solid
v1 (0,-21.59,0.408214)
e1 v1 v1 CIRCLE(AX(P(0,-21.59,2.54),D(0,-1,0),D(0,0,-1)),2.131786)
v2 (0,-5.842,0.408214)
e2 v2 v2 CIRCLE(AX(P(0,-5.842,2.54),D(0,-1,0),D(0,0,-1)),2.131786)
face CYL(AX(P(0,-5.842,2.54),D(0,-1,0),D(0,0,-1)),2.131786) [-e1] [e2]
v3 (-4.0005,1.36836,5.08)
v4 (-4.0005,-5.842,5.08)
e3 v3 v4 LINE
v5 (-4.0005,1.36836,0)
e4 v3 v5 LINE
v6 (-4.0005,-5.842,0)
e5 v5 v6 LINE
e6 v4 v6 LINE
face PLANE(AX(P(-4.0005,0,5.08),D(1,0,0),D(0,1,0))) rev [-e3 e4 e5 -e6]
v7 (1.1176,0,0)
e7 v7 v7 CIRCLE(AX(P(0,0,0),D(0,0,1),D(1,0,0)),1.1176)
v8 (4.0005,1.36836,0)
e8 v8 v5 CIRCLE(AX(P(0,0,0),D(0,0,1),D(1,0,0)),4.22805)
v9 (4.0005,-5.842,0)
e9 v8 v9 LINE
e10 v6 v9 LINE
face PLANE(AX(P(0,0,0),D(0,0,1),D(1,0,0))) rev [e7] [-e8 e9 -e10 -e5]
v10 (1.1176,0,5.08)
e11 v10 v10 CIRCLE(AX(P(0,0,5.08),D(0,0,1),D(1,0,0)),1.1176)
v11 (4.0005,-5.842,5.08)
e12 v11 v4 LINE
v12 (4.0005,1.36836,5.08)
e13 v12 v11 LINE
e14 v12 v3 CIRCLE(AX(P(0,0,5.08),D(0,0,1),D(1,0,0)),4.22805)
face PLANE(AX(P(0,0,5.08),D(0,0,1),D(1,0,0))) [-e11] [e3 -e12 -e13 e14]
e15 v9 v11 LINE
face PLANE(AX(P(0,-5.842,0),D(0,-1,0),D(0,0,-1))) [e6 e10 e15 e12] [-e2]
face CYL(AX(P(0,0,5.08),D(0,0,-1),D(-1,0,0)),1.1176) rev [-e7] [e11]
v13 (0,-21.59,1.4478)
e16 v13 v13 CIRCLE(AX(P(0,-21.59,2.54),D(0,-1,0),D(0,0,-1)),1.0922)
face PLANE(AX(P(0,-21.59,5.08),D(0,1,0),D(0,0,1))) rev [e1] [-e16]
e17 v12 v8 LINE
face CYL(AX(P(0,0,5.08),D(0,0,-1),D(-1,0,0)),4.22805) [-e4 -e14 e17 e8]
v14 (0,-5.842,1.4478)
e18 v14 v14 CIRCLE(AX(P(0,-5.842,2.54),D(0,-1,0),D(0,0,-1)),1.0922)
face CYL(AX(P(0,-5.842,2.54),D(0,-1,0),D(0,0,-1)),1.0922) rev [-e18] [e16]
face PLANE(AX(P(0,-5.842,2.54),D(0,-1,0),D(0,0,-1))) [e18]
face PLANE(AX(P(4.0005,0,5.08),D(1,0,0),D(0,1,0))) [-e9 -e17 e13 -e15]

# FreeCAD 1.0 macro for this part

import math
import FreeCAD as App
import Part
import Sketcher
from FreeCAD import Vector
Q = App.Units.Quantity

doc = App.newDocument("Part")
params = doc.addObject("Spreadsheet::Sheet", "Params")
for row, (alias, value) in enumerate([
    ("sketch1_diameter", "0.088 in"),
    ("sketch1_width", "0.315 in"),
    ("pad1_length", "0.2 in"),
    ("sketch2_diameter", "0.086 in"),
    ("pocket1_length", "0.62 in"),
    ("sketch3_height", "0.2 in"),
    ("sketch3_width", "0.315 in"),
    ("pocket2_length", "0.62 in"),
], start=1):
    params.set(f"A{row}", alias)
    params.set(f"B{row}", "=" + value)
    params.setAlias(f"B{row}", alias)

body = doc.addObject("PartDesign::Body", "Body")

sketch1 = body.newObject("Sketcher::SketchObject", "Sketch")
sketch1.AttachmentSupport = (doc.getObject("XY_Plane"), [""])
sketch1.MapMode = "FlatFace"
sketch1.addGeometry(Part.LineSegment(Vector(4, -21.6, 0), Vector(4, 1.4, 0)), False)
sketch1.addGeometry(Part.ArcOfCircle(Part.Circle(Vector(0, 0, 0), Vector(0, 0, 1), 4.2), math.radians(19), math.radians(161)), False)
sketch1.addGeometry(Part.LineSegment(Vector(-4, 1.4, 0), Vector(-4, -21.6, 0)), False)
sketch1.addGeometry(Part.LineSegment(Vector(-4, -21.6, 0), Vector(4, -21.6, 0)), False)
sketch1.addGeometry(Part.Circle(Vector(0, 0, 0), Vector(0, 0, 1), 1.1), False)
sketch1.addConstraint(Sketcher.Constraint("Coincident", 0, 2, 1, 1))
sketch1.addConstraint(Sketcher.Constraint("Coincident", 1, 2, 2, 1))
sketch1.addConstraint(Sketcher.Constraint("Coincident", 2, 2, 3, 1))
sketch1.addConstraint(Sketcher.Constraint("Coincident", 3, 2, 0, 1))
sketch1.addConstraint(Sketcher.Constraint("Vertical", 0))
sketch1.addConstraint(Sketcher.Constraint("Vertical", 2))
sketch1.addConstraint(Sketcher.Constraint("Horizontal", 3))
sketch1.addConstraint(Sketcher.Constraint("Coincident", 1, 3, -1, 1))
sketch1.addConstraint(Sketcher.Constraint("Coincident", 4, 3, -1, 1))
sketch1.addConstraint(Sketcher.Constraint("Horizontal", 0, 2, 1, 2))
sketch1.addConstraint(Sketcher.Constraint("Diameter", 4, Q("0.088 in")))
sketch1.addConstraint(Sketcher.Constraint("DistanceX", 3, 1, 3, 2, Q("0.315 in")))
sketch1.addConstraint(Sketcher.Constraint("DistanceY", 2, 2, -1, 1, Q("0.85 in")))
sketch1.addConstraint(Sketcher.Constraint("Radius", 1, Q("4.22805 mm")))
sketch1.setExpression("Constraints[10]", "Params.sketch1_diameter")
sketch1.setExpression("Constraints[11]", "Params.sketch1_width")
pad1 = body.newObject("PartDesign::Pad", "Pad")
pad1.Profile = sketch1
pad1.setExpression("Length", "Params.pad1_length")

sketch2 = body.newObject("Sketcher::SketchObject", "Sketch001")
sketch2.AttachmentSupport = (doc.getObject("XZ_Plane"), [""])
sketch2.MapMode = "FlatFace"
sketch2.AttachmentOffset = App.Placement(Vector(0, 0, 0.85 * 25.4), App.Rotation())
sketch2.addGeometry(Part.Circle(Vector(0, 2.5, 0), Vector(0, 0, 1), 1.1), False)
sketch2.addConstraint(Sketcher.Constraint("PointOnObject", 0, 3, -2))
sketch2.addConstraint(Sketcher.Constraint("Diameter", 0, Q("0.086 in")))
sketch2.addConstraint(Sketcher.Constraint("DistanceY", -1, 1, 0, 3, Q("0.1 in")))
sketch2.setExpression("Constraints[1]", "Params.sketch2_diameter")
pocket1 = body.newObject("PartDesign::Pocket", "Pocket")
pocket1.Profile = sketch2
pocket1.setExpression("Length", "Params.pocket1_length")

sketch3 = body.newObject("Sketcher::SketchObject", "Sketch002")
sketch3.AttachmentSupport = (doc.getObject("XZ_Plane"), [""])
sketch3.MapMode = "FlatFace"
sketch3.AttachmentOffset = App.Placement(Vector(0, 0, 0.85 * 25.4), App.Rotation())
sketch3.addGeometry(Part.LineSegment(Vector(-4, 5.1, 0), Vector(-4, 0, 0)), False)
sketch3.addGeometry(Part.LineSegment(Vector(-4, 0, 0), Vector(4, 0, 0)), False)
sketch3.addGeometry(Part.LineSegment(Vector(4, 0, 0), Vector(4, 5.1, 0)), False)
sketch3.addGeometry(Part.LineSegment(Vector(4, 5.1, 0), Vector(-4, 5.1, 0)), False)
sketch3.addGeometry(Part.Circle(Vector(0, 2.5, 0), Vector(0, 0, 1), 2.1), False)
sketch3.addConstraint(Sketcher.Constraint("Coincident", 0, 2, 1, 1))
sketch3.addConstraint(Sketcher.Constraint("Coincident", 1, 2, 2, 1))
sketch3.addConstraint(Sketcher.Constraint("Coincident", 2, 2, 3, 1))
sketch3.addConstraint(Sketcher.Constraint("Coincident", 3, 2, 0, 1))
sketch3.addConstraint(Sketcher.Constraint("Vertical", 0))
sketch3.addConstraint(Sketcher.Constraint("Horizontal", 1))
sketch3.addConstraint(Sketcher.Constraint("Vertical", 2))
sketch3.addConstraint(Sketcher.Constraint("Horizontal", 3))
sketch3.addConstraint(Sketcher.Constraint("Symmetric", 0, 2, 1, 2, -1, 1))
sketch3.addConstraint(Sketcher.Constraint("PointOnObject", 4, 3, -2))
sketch3.addConstraint(Sketcher.Constraint("DistanceY", 0, 2, 0, 1, Q("0.2 in")))
sketch3.addConstraint(Sketcher.Constraint("DistanceY", -1, 1, 4, 3, Q("0.1 in")))
sketch3.addConstraint(Sketcher.Constraint("DistanceX", 1, 1, 1, 2, Q("0.315 in")))
sketch3.addConstraint(Sketcher.Constraint("Diameter", 4, Q("4.263571 mm")))
sketch3.setExpression("Constraints[10]", "Params.sketch3_height")
sketch3.setExpression("Constraints[12]", "Params.sketch3_width")
pocket2 = body.newObject("PartDesign::Pocket", "Pocket001")
pocket2.Profile = sketch3
pocket2.setExpression("Length", "Params.pocket2_length")

doc.recompute()
